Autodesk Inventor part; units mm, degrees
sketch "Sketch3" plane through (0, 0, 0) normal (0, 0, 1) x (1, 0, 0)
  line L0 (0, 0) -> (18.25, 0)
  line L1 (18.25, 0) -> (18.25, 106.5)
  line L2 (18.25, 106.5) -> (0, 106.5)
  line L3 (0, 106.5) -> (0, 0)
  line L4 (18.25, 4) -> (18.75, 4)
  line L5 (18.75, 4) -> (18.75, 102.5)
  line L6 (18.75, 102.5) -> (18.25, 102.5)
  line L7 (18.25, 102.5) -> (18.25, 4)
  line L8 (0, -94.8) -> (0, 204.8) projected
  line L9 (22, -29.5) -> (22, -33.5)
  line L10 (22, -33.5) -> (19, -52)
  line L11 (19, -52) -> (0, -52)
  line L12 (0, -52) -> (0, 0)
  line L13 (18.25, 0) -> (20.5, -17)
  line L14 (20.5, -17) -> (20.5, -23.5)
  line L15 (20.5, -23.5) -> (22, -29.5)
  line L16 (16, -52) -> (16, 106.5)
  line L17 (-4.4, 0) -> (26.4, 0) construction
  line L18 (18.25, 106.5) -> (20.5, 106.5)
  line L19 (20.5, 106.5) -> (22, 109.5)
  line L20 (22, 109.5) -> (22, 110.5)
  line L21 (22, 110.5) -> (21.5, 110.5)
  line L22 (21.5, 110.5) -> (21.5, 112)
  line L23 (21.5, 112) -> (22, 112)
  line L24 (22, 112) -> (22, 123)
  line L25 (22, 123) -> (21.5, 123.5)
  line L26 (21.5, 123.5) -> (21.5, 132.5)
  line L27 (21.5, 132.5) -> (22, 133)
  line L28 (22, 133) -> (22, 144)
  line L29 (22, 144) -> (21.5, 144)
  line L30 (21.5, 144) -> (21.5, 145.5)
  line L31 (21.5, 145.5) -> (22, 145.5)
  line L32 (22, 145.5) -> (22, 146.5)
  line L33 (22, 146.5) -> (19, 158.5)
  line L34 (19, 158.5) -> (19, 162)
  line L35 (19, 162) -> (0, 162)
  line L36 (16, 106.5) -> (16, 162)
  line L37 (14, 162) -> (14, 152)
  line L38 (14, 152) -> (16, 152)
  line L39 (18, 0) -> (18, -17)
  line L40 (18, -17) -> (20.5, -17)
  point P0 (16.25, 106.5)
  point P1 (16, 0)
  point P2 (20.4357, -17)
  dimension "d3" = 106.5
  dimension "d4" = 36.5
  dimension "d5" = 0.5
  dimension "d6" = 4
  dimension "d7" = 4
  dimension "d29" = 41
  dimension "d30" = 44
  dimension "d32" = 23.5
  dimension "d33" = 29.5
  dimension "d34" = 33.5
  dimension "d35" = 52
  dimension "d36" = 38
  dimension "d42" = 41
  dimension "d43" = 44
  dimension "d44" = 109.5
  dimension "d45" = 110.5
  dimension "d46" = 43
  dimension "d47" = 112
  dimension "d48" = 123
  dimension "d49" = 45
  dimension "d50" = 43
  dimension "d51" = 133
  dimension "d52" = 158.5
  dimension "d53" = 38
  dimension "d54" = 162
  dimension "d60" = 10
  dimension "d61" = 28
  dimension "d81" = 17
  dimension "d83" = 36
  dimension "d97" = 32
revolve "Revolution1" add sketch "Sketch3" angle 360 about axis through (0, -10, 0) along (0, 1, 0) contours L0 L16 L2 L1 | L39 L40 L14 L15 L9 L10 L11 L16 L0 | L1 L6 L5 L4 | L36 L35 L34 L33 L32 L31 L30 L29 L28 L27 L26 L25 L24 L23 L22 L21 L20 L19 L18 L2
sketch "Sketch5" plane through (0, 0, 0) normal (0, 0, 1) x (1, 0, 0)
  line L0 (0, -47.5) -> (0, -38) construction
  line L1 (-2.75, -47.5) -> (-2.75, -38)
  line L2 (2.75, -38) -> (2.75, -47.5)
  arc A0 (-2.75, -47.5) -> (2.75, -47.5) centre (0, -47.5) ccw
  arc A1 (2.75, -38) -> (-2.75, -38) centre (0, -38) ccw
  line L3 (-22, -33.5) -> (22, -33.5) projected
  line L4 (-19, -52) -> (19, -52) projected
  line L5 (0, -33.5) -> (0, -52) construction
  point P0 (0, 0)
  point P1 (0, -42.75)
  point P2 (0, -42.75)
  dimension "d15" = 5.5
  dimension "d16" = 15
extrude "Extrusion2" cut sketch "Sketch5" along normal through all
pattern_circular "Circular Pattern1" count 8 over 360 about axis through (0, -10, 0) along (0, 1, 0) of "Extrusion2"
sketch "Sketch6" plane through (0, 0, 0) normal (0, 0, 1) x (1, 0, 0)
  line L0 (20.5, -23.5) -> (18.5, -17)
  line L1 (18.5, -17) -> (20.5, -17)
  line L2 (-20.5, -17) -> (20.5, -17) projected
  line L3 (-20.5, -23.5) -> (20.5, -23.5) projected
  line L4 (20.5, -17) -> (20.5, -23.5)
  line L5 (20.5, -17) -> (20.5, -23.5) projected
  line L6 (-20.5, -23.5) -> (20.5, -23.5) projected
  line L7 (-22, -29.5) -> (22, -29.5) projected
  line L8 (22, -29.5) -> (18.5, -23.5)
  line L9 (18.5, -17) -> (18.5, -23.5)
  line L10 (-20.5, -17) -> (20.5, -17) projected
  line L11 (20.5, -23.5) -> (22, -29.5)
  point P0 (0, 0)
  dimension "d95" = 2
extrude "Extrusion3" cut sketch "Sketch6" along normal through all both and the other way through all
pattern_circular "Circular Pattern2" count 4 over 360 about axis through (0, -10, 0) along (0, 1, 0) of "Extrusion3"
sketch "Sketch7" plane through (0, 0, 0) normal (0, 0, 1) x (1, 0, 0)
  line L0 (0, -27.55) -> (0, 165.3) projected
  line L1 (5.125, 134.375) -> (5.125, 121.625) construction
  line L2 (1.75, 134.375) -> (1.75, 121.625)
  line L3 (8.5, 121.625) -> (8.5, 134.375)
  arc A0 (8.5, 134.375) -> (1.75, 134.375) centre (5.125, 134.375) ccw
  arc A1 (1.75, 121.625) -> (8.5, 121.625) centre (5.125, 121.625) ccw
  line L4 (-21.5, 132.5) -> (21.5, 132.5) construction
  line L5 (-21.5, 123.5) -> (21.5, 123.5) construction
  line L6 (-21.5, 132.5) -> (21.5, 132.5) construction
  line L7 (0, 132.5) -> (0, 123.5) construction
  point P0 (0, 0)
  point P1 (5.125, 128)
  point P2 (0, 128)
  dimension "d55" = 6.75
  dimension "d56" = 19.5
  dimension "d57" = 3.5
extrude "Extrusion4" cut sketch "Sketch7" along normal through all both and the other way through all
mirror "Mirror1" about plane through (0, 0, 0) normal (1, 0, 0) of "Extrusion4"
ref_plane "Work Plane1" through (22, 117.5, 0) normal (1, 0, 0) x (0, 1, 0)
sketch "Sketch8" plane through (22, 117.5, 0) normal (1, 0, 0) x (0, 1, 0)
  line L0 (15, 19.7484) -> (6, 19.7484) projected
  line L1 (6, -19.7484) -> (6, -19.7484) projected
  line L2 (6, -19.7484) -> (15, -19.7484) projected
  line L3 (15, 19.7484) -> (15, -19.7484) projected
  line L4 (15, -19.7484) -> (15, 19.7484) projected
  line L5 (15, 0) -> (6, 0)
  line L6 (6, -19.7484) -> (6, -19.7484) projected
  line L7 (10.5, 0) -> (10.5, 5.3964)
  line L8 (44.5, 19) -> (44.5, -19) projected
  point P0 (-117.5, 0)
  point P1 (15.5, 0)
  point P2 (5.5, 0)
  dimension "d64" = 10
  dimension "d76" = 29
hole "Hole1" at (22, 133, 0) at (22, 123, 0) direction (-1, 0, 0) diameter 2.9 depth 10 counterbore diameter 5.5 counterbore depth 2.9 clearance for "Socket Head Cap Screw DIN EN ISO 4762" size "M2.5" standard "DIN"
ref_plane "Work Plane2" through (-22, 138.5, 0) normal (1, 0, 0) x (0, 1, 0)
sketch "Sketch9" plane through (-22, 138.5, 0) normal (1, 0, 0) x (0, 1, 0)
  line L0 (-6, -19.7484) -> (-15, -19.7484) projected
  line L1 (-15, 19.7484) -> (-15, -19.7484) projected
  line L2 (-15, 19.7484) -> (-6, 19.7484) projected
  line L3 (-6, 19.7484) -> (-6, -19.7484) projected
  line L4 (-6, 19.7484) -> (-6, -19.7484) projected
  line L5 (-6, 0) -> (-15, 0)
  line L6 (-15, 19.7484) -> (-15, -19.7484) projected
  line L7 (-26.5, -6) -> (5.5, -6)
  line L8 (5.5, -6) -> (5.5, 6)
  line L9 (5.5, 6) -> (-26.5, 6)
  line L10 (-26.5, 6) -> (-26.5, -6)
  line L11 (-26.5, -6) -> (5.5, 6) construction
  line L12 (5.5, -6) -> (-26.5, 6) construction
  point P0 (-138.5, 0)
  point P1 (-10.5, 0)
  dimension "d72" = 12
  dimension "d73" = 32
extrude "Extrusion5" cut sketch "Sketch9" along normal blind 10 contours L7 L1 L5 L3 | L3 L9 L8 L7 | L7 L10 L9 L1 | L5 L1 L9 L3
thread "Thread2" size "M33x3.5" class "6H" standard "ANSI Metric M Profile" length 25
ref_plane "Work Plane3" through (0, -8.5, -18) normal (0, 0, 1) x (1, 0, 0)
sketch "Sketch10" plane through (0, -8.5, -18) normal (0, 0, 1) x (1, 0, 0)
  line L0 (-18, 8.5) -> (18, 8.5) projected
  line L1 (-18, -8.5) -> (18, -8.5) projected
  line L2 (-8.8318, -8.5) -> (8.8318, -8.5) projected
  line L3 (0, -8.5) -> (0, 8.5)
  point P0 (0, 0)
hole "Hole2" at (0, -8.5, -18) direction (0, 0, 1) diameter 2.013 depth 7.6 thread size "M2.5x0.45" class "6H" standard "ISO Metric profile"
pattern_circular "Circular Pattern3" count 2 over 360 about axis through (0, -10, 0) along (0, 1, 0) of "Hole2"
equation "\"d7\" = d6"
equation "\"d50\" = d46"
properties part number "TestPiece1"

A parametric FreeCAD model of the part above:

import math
import FreeCAD as App
import Part
import Sketcher
Q = App.Units.Quantity

doc = App.newDocument("Part")
body = doc.addObject("PartDesign::Body", "Body")

sketch1 = body.newObject("Sketcher::SketchObject", "Sketch")
sketch1.AttachmentSupport = (doc.getObject("XY_Plane"), [""])
sketch1.MapMode = "FlatFace"
sketch1.addGeometry(Part.LineSegment(App.Vector(16, -52, 0), App.Vector(19, -52, 0)), False)
sketch1.addGeometry(Part.LineSegment(App.Vector(19, -52, 0), App.Vector(22, -33.5, 0)), False)
sketch1.addGeometry(Part.LineSegment(App.Vector(22, -33.5, 0), App.Vector(22, -29.5, 0)), False)
sketch1.addGeometry(Part.LineSegment(App.Vector(22, -29.5, 0), App.Vector(20.5, -23.5, 0)), False)
sketch1.addGeometry(Part.LineSegment(App.Vector(20.5, -23.5, 0), App.Vector(20.5, -17, 0)), False)
sketch1.addGeometry(Part.LineSegment(App.Vector(20.5, -17, 0), App.Vector(18, -17, 0)), False)
sketch1.addGeometry(Part.LineSegment(App.Vector(18, -17, 0), App.Vector(18, 0, 0)), False)
sketch1.addGeometry(Part.LineSegment(App.Vector(18, 0, 0), App.Vector(18.25, 0, 0)), False)
sketch1.addGeometry(Part.LineSegment(App.Vector(18.25, 0, 0), App.Vector(18.25, 4, 0)), False)
sketch1.addGeometry(Part.LineSegment(App.Vector(18.25, 4, 0), App.Vector(18.75, 4, 0)), False)
sketch1.addGeometry(Part.LineSegment(App.Vector(18.75, 4, 0), App.Vector(18.75, 102.5, 0)), False)
sketch1.addGeometry(Part.LineSegment(App.Vector(18.75, 102.5, 0), App.Vector(18.25, 102.5, 0)), False)
sketch1.addGeometry(Part.LineSegment(App.Vector(18.25, 102.5, 0), App.Vector(18.25, 106.5, 0)), False)
sketch1.addGeometry(Part.LineSegment(App.Vector(18.25, 106.5, 0), App.Vector(20.5, 106.5, 0)), False)
sketch1.addGeometry(Part.LineSegment(App.Vector(20.5, 106.5, 0), App.Vector(22, 109.5, 0)), False)
sketch1.addGeometry(Part.LineSegment(App.Vector(22, 109.5, 0), App.Vector(22, 110.5, 0)), False)
sketch1.addGeometry(Part.LineSegment(App.Vector(22, 110.5, 0), App.Vector(21.5, 110.5, 0)), False)
sketch1.addGeometry(Part.LineSegment(App.Vector(21.5, 110.5, 0), App.Vector(21.5, 112, 0)), False)
sketch1.addGeometry(Part.LineSegment(App.Vector(21.5, 112, 0), App.Vector(22, 112, 0)), False)
sketch1.addGeometry(Part.LineSegment(App.Vector(22, 112, 0), App.Vector(22, 123, 0)), False)
sketch1.addGeometry(Part.LineSegment(App.Vector(22, 123, 0), App.Vector(21.5, 123.5, 0)), False)
sketch1.addGeometry(Part.LineSegment(App.Vector(21.5, 123.5, 0), App.Vector(21.5, 132.5, 0)), False)
sketch1.addGeometry(Part.LineSegment(App.Vector(21.5, 132.5, 0), App.Vector(22, 133, 0)), False)
sketch1.addGeometry(Part.LineSegment(App.Vector(22, 133, 0), App.Vector(22, 144, 0)), False)
sketch1.addGeometry(Part.LineSegment(App.Vector(22, 144, 0), App.Vector(21.5, 144, 0)), False)
sketch1.addGeometry(Part.LineSegment(App.Vector(21.5, 144, 0), App.Vector(21.5, 145.5, 0)), False)
sketch1.addGeometry(Part.LineSegment(App.Vector(21.5, 145.5, 0), App.Vector(22, 145.5, 0)), False)
sketch1.addGeometry(Part.LineSegment(App.Vector(22, 145.5, 0), App.Vector(22, 146.5, 0)), False)
sketch1.addGeometry(Part.LineSegment(App.Vector(22, 146.5, 0), App.Vector(19, 158.5, 0)), False)
sketch1.addGeometry(Part.LineSegment(App.Vector(19, 158.5, 0), App.Vector(19, 162, 0)), False)
sketch1.addGeometry(Part.LineSegment(App.Vector(19, 162, 0), App.Vector(16, 162, 0)), False)
sketch1.addGeometry(Part.LineSegment(App.Vector(16, 162, 0), App.Vector(16, -52, 0)), False)
sketch1.addConstraint(Sketcher.Constraint("Coincident", 0, 2, 1, 1))
sketch1.addConstraint(Sketcher.Constraint("Coincident", 1, 2, 2, 1))
sketch1.addConstraint(Sketcher.Constraint("Coincident", 2, 2, 3, 1))
sketch1.addConstraint(Sketcher.Constraint("Coincident", 3, 2, 4, 1))
sketch1.addConstraint(Sketcher.Constraint("Coincident", 4, 2, 5, 1))
sketch1.addConstraint(Sketcher.Constraint("Coincident", 5, 2, 6, 1))
sketch1.addConstraint(Sketcher.Constraint("Coincident", 6, 2, 7, 1))
sketch1.addConstraint(Sketcher.Constraint("Coincident", 7, 2, 8, 1))
sketch1.addConstraint(Sketcher.Constraint("Coincident", 8, 2, 9, 1))
sketch1.addConstraint(Sketcher.Constraint("Coincident", 9, 2, 10, 1))
sketch1.addConstraint(Sketcher.Constraint("Coincident", 10, 2, 11, 1))
sketch1.addConstraint(Sketcher.Constraint("Coincident", 11, 2, 12, 1))
sketch1.addConstraint(Sketcher.Constraint("Coincident", 12, 2, 13, 1))
sketch1.addConstraint(Sketcher.Constraint("Coincident", 13, 2, 14, 1))
sketch1.addConstraint(Sketcher.Constraint("Coincident", 14, 2, 15, 1))
sketch1.addConstraint(Sketcher.Constraint("Coincident", 15, 2, 16, 1))
sketch1.addConstraint(Sketcher.Constraint("Coincident", 16, 2, 17, 1))
sketch1.addConstraint(Sketcher.Constraint("Coincident", 17, 2, 18, 1))
sketch1.addConstraint(Sketcher.Constraint("Coincident", 18, 2, 19, 1))
sketch1.addConstraint(Sketcher.Constraint("Coincident", 19, 2, 20, 1))
sketch1.addConstraint(Sketcher.Constraint("Coincident", 20, 2, 21, 1))
sketch1.addConstraint(Sketcher.Constraint("Coincident", 21, 2, 22, 1))
sketch1.addConstraint(Sketcher.Constraint("Coincident", 22, 2, 23, 1))
sketch1.addConstraint(Sketcher.Constraint("Coincident", 23, 2, 24, 1))
sketch1.addConstraint(Sketcher.Constraint("Coincident", 24, 2, 25, 1))
sketch1.addConstraint(Sketcher.Constraint("Coincident", 25, 2, 26, 1))
sketch1.addConstraint(Sketcher.Constraint("Coincident", 26, 2, 27, 1))
sketch1.addConstraint(Sketcher.Constraint("Coincident", 27, 2, 28, 1))
sketch1.addConstraint(Sketcher.Constraint("Coincident", 28, 2, 29, 1))
sketch1.addConstraint(Sketcher.Constraint("Coincident", 29, 2, 30, 1))
sketch1.addConstraint(Sketcher.Constraint("Coincident", 30, 2, 31, 1))
sketch1.addConstraint(Sketcher.Constraint("Coincident", 31, 2, 0, 1))
sketch1.addConstraint(Sketcher.Constraint("Horizontal", 0))
sketch1.addConstraint(Sketcher.Constraint("Vertical", 2))
sketch1.addConstraint(Sketcher.Constraint("Vertical", 4))
sketch1.addConstraint(Sketcher.Constraint("Horizontal", 5))
sketch1.addConstraint(Sketcher.Constraint("Vertical", 6))
sketch1.addConstraint(Sketcher.Constraint("Horizontal", 7))
sketch1.addConstraint(Sketcher.Constraint("Vertical", 8))
sketch1.addConstraint(Sketcher.Constraint("Horizontal", 9))
sketch1.addConstraint(Sketcher.Constraint("Vertical", 10))
sketch1.addConstraint(Sketcher.Constraint("Horizontal", 11))
sketch1.addConstraint(Sketcher.Constraint("Vertical", 12))
sketch1.addConstraint(Sketcher.Constraint("Horizontal", 13))
sketch1.addConstraint(Sketcher.Constraint("Vertical", 15))
sketch1.addConstraint(Sketcher.Constraint("Horizontal", 16))
sketch1.addConstraint(Sketcher.Constraint("Vertical", 17))
sketch1.addConstraint(Sketcher.Constraint("Horizontal", 18))
sketch1.addConstraint(Sketcher.Constraint("Vertical", 19))
sketch1.addConstraint(Sketcher.Constraint("Vertical", 21))
sketch1.addConstraint(Sketcher.Constraint("Vertical", 23))
sketch1.addConstraint(Sketcher.Constraint("Horizontal", 24))
sketch1.addConstraint(Sketcher.Constraint("Vertical", 25))
sketch1.addConstraint(Sketcher.Constraint("Horizontal", 26))
sketch1.addConstraint(Sketcher.Constraint("Vertical", 27))
sketch1.addConstraint(Sketcher.Constraint("Vertical", 29))
sketch1.addConstraint(Sketcher.Constraint("Horizontal", 30))
sketch1.addConstraint(Sketcher.Constraint("Vertical", 31))
sketch1.addConstraint(Sketcher.Constraint("PointOnObject", 6, 2, -1))
sketch1.addConstraint(Sketcher.Constraint("Perpendicular", 20, 22))
sketch1.addConstraint(Sketcher.Constraint("Parallel", 3, 28))
sketch1.addConstraint(Sketcher.Constraint("Vertical", 8, 2, 11, 2))
sketch1.addConstraint(Sketcher.Constraint("Vertical", 4, 2, 13, 2))
sketch1.addConstraint(Sketcher.Constraint("Vertical", 2, 2, 14, 2))
sketch1.addConstraint(Sketcher.Constraint("Vertical", 15, 2, 18, 2))
sketch1.addConstraint(Sketcher.Constraint("Vertical", 17, 2, 20, 2))
sketch1.addConstraint(Sketcher.Constraint("Vertical", 19, 2, 22, 2))
sketch1.addConstraint(Sketcher.Constraint("Vertical", 21, 2, 24, 2))
sketch1.addConstraint(Sketcher.Constraint("Vertical", 23, 2, 26, 2))
sketch1.addConstraint(Sketcher.Constraint("Vertical", 0, 2, 28, 2))
sketch1.addConstraint(Sketcher.Constraint("Equal", 11, 16))
sketch1.addConstraint(Sketcher.Constraint("Equal", 2, 8))
sketch1.addConstraint(Sketcher.Constraint("Equal", 8, 12))
sketch1.addConstraint(Sketcher.Constraint("Equal", 19, 23))
sketch1.addConstraint(Sketcher.Constraint("Equal", 17, 25))
sketch1.addConstraint(Sketcher.Constraint("Equal", 15, 27))
sketch1.addConstraint(Sketcher.Constraint("Equal", 20, 22))
sketch1.addConstraint(Sketcher.Constraint("DistanceY", 2, 1, 2, 2, Q("4 mm")))
sketch1.addConstraint(Sketcher.Constraint("DistanceY", 6, 1, 6, 2, Q("17 mm")))
sketch1.addConstraint(Sketcher.Constraint("DistanceX", 9, 1, 9, 2, Q("0.5 mm")))
sketch1.addConstraint(Sketcher.Constraint("DistanceY", 0, 2, -1, 1, Q("52 mm")))
sketch1.addConstraint(Sketcher.Constraint("DistanceY", -1, 1, 17, 2, Q("112 mm")))
sketch1.addConstraint(Sketcher.Constraint("DistanceY", -1, 1, 19, 2, Q("123 mm")))
sketch1.addConstraint(Sketcher.Constraint("DistanceY", -1, 1, 22, 2, Q("133 mm")))
sketch1.addConstraint(Sketcher.Constraint("DistanceY", -1, 1, 29, 2, Q("162 mm")))
sketch1.addConstraint(Sketcher.Constraint("DistanceY", 1, 2, 3, 2, Q("10 mm")))
sketch1.addConstraint(Sketcher.Constraint("DistanceX", 5, 2, 2, 2, Q("4 mm")))
sketch1.addConstraint(Sketcher.Constraint("DistanceY", 13, 2, 15, 2, Q("4 mm")))
sketch1.addConstraint(Sketcher.Constraint("DistanceY", 1, 2, -1, 1, Q("33.5 mm")))
sketch1.addConstraint(Sketcher.Constraint("DistanceY", -1, 1, 12, 2, Q("106.5 mm")))
sketch1.addConstraint(Sketcher.Constraint("DistanceY", -1, 1, 14, 2, Q("109.5 mm")))
sketch1.addConstraint(Sketcher.Constraint("DistanceY", -1, 1, 28, 2, Q("158.5 mm")))
sketch1.addConstraint(Sketcher.Constraint("DistanceX", 0, 1, 0, 2, Q("3 mm")))
sketch1.addConstraint(Sketcher.Constraint("DistanceX", 5, 2, 5, 1, Q("2.5 mm")))
sketch1.addConstraint(Sketcher.Constraint("DistanceX", -1, 1, 0, 2, Q("19 mm")))
sketch1.addConstraint(Sketcher.Constraint("DistanceX", 7, 1, 7, 2, Q("0.25 mm")))
revolution = body.newObject("PartDesign::Revolution", "Revolution")
revolution.Profile = sketch1
revolution.ReferenceAxis = (sketch1, ["V_Axis"])
revolution.Angle = 360

sketch2 = body.newObject("Sketcher::SketchObject", "Sketch001")
sketch2.AttachmentSupport = (doc.getObject("XY_Plane"), [""])
sketch2.MapMode = "FlatFace"
sketch2.addGeometry(Part.LineSegment(App.Vector(-2.75, -38, 0), App.Vector(-2.75, -47.5, 0)), False)
sketch2.addGeometry(Part.ArcOfCircle(Part.Circle(App.Vector(0, -47.5, 0), App.Vector(0, 0, 1), 2.75), math.radians(180), math.radians(360)), False)
sketch2.addGeometry(Part.LineSegment(App.Vector(2.75, -47.5, 0), App.Vector(2.75, -38, 0)), False)
sketch2.addGeometry(Part.ArcOfCircle(Part.Circle(App.Vector(0, -38, 0), App.Vector(0, 0, 1), 2.75), math.radians(0), math.radians(180)), False)
sketch2.addConstraint(Sketcher.Constraint("Tangent", 0, 2, 1, 1))
sketch2.addConstraint(Sketcher.Constraint("Tangent", 1, 2, 2, 1))
sketch2.addConstraint(Sketcher.Constraint("Tangent", 2, 2, 3, 1))
sketch2.addConstraint(Sketcher.Constraint("Tangent", 3, 2, 0, 1))
sketch2.addConstraint(Sketcher.Constraint("Vertical", 0))
sketch2.addConstraint(Sketcher.Constraint("Vertical", 2))
sketch2.addConstraint(Sketcher.Constraint("PointOnObject", 1, 3, -2))
sketch2.addConstraint(Sketcher.Constraint("Radius", 1, Q("2.75 mm")))
sketch2.addConstraint(Sketcher.Constraint("DistanceY", 0, 2, 0, 1, Q("9.5 mm")))
sketch2.addConstraint(Sketcher.Constraint("DistanceY", 3, 3, -1, 1, Q("38 mm")))
pocket1 = body.newObject("PartDesign::Pocket", "Pocket")
pocket1.Profile = sketch2
pocket1.Type = "ThroughAll"
pocket1.Reversed = True
doc.recompute()

polarpattern = body.newObject("PartDesign::PolarPattern", "PolarPattern")
polarpattern.Originals = [pocket1]
polarpattern.Axis = (doc.getObject("Y_Axis"), [""])
polarpattern.Angle = 360
polarpattern.Occurrences = 8
body.Tip = polarpattern

sketch3 = body.newObject("Sketcher::SketchObject", "Sketch002")
sketch3.AttachmentSupport = (doc.getObject("XY_Plane"), [""])
sketch3.MapMode = "FlatFace"
sketch3.addGeometry(Part.LineSegment(App.Vector(18.5, -17, 0), App.Vector(18.5, -23.5, 0)), False)
sketch3.addGeometry(Part.LineSegment(App.Vector(18.5, -23.5, 0), App.Vector(22, -29.5, 0)), False)
sketch3.addGeometry(Part.LineSegment(App.Vector(22, -29.5, 0), App.Vector(20.5, -23.5, 0)), False)
sketch3.addGeometry(Part.LineSegment(App.Vector(20.5, -23.5, 0), App.Vector(20.5, -17, 0)), False)
sketch3.addGeometry(Part.LineSegment(App.Vector(20.5, -17, 0), App.Vector(18.5, -17, 0)), False)
sketch3.addConstraint(Sketcher.Constraint("Coincident", 0, 2, 1, 1))
sketch3.addConstraint(Sketcher.Constraint("Coincident", 1, 2, 2, 1))
sketch3.addConstraint(Sketcher.Constraint("Coincident", 2, 2, 3, 1))
sketch3.addConstraint(Sketcher.Constraint("Coincident", 3, 2, 4, 1))
sketch3.addConstraint(Sketcher.Constraint("Coincident", 4, 2, 0, 1))
sketch3.addConstraint(Sketcher.Constraint("Vertical", 0))
sketch3.addConstraint(Sketcher.Constraint("Vertical", 3))
sketch3.addConstraint(Sketcher.Constraint("Horizontal", 4))
sketch3.addConstraint(Sketcher.Constraint("Horizontal", 0, 2, 2, 2))
sketch3.addConstraint(Sketcher.Constraint("DistanceX", 4, 2, 4, 1, Q("2 mm")))
sketch3.addConstraint(Sketcher.Constraint("DistanceY", 0, 2, 0, 1, Q("6.5 mm")))
sketch3.addConstraint(Sketcher.Constraint("DistanceX", -1, 1, 1, 2, Q("22 mm")))
sketch3.addConstraint(Sketcher.Constraint("DistanceY", 3, 2, -1, 1, Q("17 mm")))
sketch3.addConstraint(Sketcher.Constraint("DistanceY", 1, 2, 0, 2, Q("6 mm")))
sketch3.addConstraint(Sketcher.Constraint("DistanceX", -1, 1, 0, 2, Q("18.5 mm")))
pocket2 = body.newObject("PartDesign::Pocket", "Pocket001")
pocket2.Profile = sketch3
pocket2.Type = "ThroughAll"
pocket2.Midplane = True
doc.recompute()

polarpattern2 = body.newObject("PartDesign::PolarPattern", "PolarPattern001")
polarpattern2.Originals = [pocket2]
polarpattern2.Axis = (doc.getObject("Y_Axis"), [""])
polarpattern2.Angle = 360
polarpattern2.Occurrences = 4
body.Tip = polarpattern2

sketch4 = body.newObject("Sketcher::SketchObject", "Sketch003")
sketch4.AttachmentSupport = (doc.getObject("XY_Plane"), [""])
sketch4.MapMode = "FlatFace"
sketch4.addGeometry(Part.ArcOfCircle(Part.Circle(App.Vector(5.125, 134.375, 0), App.Vector(0, 0, 1), 3.375), math.radians(0), math.radians(180)), False)
sketch4.addGeometry(Part.LineSegment(App.Vector(1.75, 134.375, 0), App.Vector(1.75, 121.625, 0)), False)
sketch4.addGeometry(Part.ArcOfCircle(Part.Circle(App.Vector(5.125, 121.625, 0), App.Vector(0, 0, 1), 3.375), math.radians(180), math.radians(360)), False)
sketch4.addGeometry(Part.LineSegment(App.Vector(8.5, 121.625, 0), App.Vector(8.5, 134.375, 0)), False)
sketch4.addConstraint(Sketcher.Constraint("Tangent", 0, 2, 1, 1))
sketch4.addConstraint(Sketcher.Constraint("Tangent", 1, 2, 2, 1))
sketch4.addConstraint(Sketcher.Constraint("Tangent", 2, 2, 3, 1))
sketch4.addConstraint(Sketcher.Constraint("Tangent", 3, 2, 0, 1))
sketch4.addConstraint(Sketcher.Constraint("Vertical", 1))
sketch4.addConstraint(Sketcher.Constraint("Vertical", 3))
sketch4.addConstraint(Sketcher.Constraint("Radius", 0, Q("3.375 mm")))
sketch4.addConstraint(Sketcher.Constraint("DistanceY", 1, 2, 1, 1, Q("12.75 mm")))
sketch4.addConstraint(Sketcher.Constraint("DistanceX", -1, 1, 2, 2, Q("8.5 mm")))
sketch4.addConstraint(Sketcher.Constraint("DistanceY", -1, 1, 0, 3, Q("134.375 mm")))
pocket3 = body.newObject("PartDesign::Pocket", "Pocket002")
pocket3.Profile = sketch4
pocket3.Type = "ThroughAll"
pocket3.Midplane = True
doc.recompute()

mirrored = body.newObject("PartDesign::Mirrored", "Mirrored")
mirrored.Originals = [pocket3]
mirrored.MirrorPlane = (doc.getObject("YZ_Plane"), [""])
body.Tip = mirrored

sketch5 = body.newObject("Sketcher::SketchObject", "Sketch004")
sketch5.AttachmentSupport = (doc.getObject("YZ_Plane"), [""])
sketch5.MapMode = "FlatFace"
sketch5.AttachmentOffset = App.Placement(App.Vector(0, 0, 22), App.Rotation())
sketch5.addGeometry(Part.Circle(App.Vector(133, 0, 0), App.Vector(0, 0, 1), 1.45), False)
sketch5.addGeometry(Part.Circle(App.Vector(123, 0, 0), App.Vector(0, 0, 1), 1.45), False)
sketch5.addConstraint(Sketcher.Constraint("Equal", 0, 1))
sketch5.addConstraint(Sketcher.Constraint("PointOnObject", 0, 3, -1))
sketch5.addConstraint(Sketcher.Constraint("PointOnObject", 1, 3, -1))
sketch5.addConstraint(Sketcher.Constraint("Diameter", 0, Q("2.9 mm")))
sketch5.addConstraint(Sketcher.Constraint("DistanceX", -1, 1, 0, 3, Q("133 mm")))
sketch5.addConstraint(Sketcher.Constraint("DistanceX", -1, 1, 1, 3, Q("123 mm")))
doc.recompute()
hole = body.newObject("PartDesign::Hole", "Hole")
hole.Profile = sketch5
hole.ThreadType = "None"
hole.Diameter = 2.9
hole.DepthType = "Dimension"
hole.Depth = 10
hole.DrillPoint = "Flat"
hole.HoleCutType = "Counterbore"
hole.HoleCutDiameter = 5.5
hole.HoleCutDepth = 2.9

sketch6 = body.newObject("Sketcher::SketchObject", "Sketch005")
sketch6.AttachmentSupport = (doc.getObject("YZ_Plane"), [""])
sketch6.MapMode = "FlatFace"
sketch6.AttachmentOffset = App.Placement(App.Vector(0, 0, -22), App.Rotation())
sketch6.addGeometry(Part.LineSegment(App.Vector(144, -6, 0), App.Vector(144, 6, 0)), False)
sketch6.addGeometry(Part.LineSegment(App.Vector(144, 6, 0), App.Vector(112, 6, 0)), False)
sketch6.addGeometry(Part.LineSegment(App.Vector(112, 6, 0), App.Vector(112, -6, 0)), False)
sketch6.addGeometry(Part.LineSegment(App.Vector(112, -6, 0), App.Vector(144, -6, 0)), False)
sketch6.addConstraint(Sketcher.Constraint("Coincident", 0, 2, 1, 1))
sketch6.addConstraint(Sketcher.Constraint("Coincident", 1, 2, 2, 1))
sketch6.addConstraint(Sketcher.Constraint("Coincident", 2, 2, 3, 1))
sketch6.addConstraint(Sketcher.Constraint("Coincident", 3, 2, 0, 1))
sketch6.addConstraint(Sketcher.Constraint("Vertical", 0))
sketch6.addConstraint(Sketcher.Constraint("Horizontal", 1))
sketch6.addConstraint(Sketcher.Constraint("Vertical", 2))
sketch6.addConstraint(Sketcher.Constraint("Horizontal", 3))
sketch6.addConstraint(Sketcher.Constraint("DistanceX", 1, 2, 1, 1, Q("32 mm")))
sketch6.addConstraint(Sketcher.Constraint("DistanceY", 0, 1, 0, 2, Q("12 mm")))
sketch6.addConstraint(Sketcher.Constraint("DistanceX", -1, 1, 0, 2, Q("144 mm")))
sketch6.addConstraint(Sketcher.Constraint("DistanceY", -1, 1, 0, 2, Q("6 mm")))
pocket4 = body.newObject("PartDesign::Pocket", "Pocket003")
pocket4.Profile = sketch6
pocket4.Length = 10
pocket4.Reversed = True

sketch7 = body.newObject("Sketcher::SketchObject", "Sketch006")
sketch7.AttachmentSupport = (doc.getObject("XY_Plane"), [""])
sketch7.MapMode = "FlatFace"
sketch7.AttachmentOffset = App.Placement(App.Vector(0, 0, -18), App.Rotation())
sketch7.addGeometry(Part.Circle(App.Vector(0, -8.5, 0), App.Vector(0, 0, 1), 1.0065), False)
sketch7.addConstraint(Sketcher.Constraint("PointOnObject", 0, 3, -2))
sketch7.addConstraint(Sketcher.Constraint("Diameter", 0, Q("2.013 mm")))
sketch7.addConstraint(Sketcher.Constraint("DistanceY", 0, 3, -1, 1, Q("8.5 mm")))
doc.recompute()
hole2 = body.newObject("PartDesign::Hole", "Hole001")
hole2.Profile = sketch7
hole2.ThreadType = "None"
hole2.Diameter = 2.013
hole2.DepthType = "Dimension"
hole2.Depth = 7.6
hole2.DrillPoint = "Flat"
hole2.Reversed = True
doc.recompute()

polarpattern3 = body.newObject("PartDesign::PolarPattern", "PolarPattern002")
polarpattern3.Originals = [hole2]
polarpattern3.Axis = (doc.getObject("Y_Axis"), [""])
polarpattern3.Angle = 360
polarpattern3.Occurrences = 2
body.Tip = polarpattern3

doc.recompute()
